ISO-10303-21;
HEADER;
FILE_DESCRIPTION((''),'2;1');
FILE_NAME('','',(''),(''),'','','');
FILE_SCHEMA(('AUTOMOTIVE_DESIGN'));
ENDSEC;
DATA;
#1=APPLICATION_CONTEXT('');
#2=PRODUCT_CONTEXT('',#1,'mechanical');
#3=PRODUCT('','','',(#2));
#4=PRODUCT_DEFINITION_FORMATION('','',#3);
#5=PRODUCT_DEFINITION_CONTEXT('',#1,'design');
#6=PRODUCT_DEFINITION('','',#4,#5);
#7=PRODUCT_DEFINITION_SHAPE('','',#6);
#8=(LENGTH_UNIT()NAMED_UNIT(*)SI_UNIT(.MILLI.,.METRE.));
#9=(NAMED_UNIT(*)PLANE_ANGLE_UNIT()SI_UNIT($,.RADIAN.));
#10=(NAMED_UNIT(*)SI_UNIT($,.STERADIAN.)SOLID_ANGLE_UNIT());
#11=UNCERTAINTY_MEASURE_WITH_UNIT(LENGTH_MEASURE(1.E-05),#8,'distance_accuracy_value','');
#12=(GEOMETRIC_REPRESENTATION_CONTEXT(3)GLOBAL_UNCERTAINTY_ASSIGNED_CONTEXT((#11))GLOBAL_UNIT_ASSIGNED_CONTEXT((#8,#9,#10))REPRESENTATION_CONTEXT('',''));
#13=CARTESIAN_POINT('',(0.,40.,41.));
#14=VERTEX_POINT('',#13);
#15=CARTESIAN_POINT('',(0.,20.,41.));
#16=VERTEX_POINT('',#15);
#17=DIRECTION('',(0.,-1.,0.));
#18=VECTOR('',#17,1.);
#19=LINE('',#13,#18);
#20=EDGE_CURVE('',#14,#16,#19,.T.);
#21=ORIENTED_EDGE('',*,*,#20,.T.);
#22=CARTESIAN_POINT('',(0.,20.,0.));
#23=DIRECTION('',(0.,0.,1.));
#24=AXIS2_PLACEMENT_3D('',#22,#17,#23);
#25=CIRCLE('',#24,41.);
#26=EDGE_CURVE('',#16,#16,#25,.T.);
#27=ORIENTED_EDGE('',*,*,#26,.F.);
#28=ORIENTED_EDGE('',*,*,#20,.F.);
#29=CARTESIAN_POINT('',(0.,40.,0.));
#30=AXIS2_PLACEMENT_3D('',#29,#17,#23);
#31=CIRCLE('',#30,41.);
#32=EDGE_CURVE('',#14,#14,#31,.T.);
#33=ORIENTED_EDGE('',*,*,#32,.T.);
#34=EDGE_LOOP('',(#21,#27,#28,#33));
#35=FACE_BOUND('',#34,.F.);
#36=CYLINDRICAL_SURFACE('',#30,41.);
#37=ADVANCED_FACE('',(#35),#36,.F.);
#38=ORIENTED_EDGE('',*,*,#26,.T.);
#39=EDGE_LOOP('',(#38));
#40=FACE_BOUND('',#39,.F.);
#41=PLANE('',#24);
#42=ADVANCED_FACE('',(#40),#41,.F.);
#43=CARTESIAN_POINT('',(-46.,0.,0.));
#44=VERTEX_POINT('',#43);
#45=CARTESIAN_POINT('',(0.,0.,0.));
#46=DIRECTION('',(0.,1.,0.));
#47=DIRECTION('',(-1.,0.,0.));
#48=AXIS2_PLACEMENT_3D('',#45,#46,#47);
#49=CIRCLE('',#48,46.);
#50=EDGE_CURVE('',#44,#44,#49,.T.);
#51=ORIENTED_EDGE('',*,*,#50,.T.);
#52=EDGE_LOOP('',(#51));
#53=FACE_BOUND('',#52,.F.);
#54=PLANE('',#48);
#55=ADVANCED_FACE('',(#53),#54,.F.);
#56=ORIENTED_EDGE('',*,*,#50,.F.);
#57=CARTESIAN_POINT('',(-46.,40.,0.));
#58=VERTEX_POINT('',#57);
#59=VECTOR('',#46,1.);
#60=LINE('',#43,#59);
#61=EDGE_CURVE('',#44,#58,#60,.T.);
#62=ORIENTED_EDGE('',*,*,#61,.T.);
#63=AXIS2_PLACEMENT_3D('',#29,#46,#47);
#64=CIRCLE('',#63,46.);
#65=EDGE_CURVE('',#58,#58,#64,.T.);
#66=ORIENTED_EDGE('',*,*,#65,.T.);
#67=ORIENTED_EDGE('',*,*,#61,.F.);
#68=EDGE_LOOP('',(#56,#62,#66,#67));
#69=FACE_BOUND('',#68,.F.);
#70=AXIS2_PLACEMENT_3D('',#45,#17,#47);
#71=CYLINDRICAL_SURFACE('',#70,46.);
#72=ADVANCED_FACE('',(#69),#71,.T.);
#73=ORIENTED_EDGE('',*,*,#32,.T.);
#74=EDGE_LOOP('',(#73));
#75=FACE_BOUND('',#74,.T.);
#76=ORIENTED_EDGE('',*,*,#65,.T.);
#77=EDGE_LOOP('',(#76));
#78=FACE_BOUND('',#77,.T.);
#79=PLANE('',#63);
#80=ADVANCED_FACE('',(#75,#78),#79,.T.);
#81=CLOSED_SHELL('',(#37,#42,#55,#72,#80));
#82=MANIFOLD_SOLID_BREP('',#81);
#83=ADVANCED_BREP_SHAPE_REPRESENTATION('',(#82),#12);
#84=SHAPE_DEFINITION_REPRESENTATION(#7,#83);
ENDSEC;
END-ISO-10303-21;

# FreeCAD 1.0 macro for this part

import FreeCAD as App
import Part
import Sketcher

V = App.Vector

doc = App.newDocument("Part")
params = doc.addObject("Spreadsheet::Sheet", "Params")
for row, (alias, value) in enumerate([
    ("sketch1_diameter", "92 mm"),
    ("pad1_length", "40 mm"),
    ("sketch2_diameter", "82 mm"),
    ("hole_diameter", "82 mm"),
    ("hole_depth", "20 mm"),
], start=1):
    params.set(f"A{row}", alias)
    params.set(f"B{row}", "=" + value)
    params.setAlias(f"B{row}", alias)

body = doc.addObject("PartDesign::Body", "Body")

# Sketch on XZ plane
sketch1 = doc.addObject("Sketcher::SketchObject", "Sketch")
body.addObject(sketch1)
sketch1.AttachmentSupport = (doc.XZ_Plane, [""])
sketch1.MapMode = "FlatFace"
sketch1.addGeometry(Part.Circle(V(0, 0, 0), V(0, 0, 1), 46), False)
sketch1.addConstraint([
    Sketcher.Constraint("Coincident", 0, 3, -1, 1),
    Sketcher.Constraint("Diameter", 0, 92.0),
])
sketch1.setExpression("Constraints[1]", "Params.sketch1_diameter")
pad1 = doc.addObject("PartDesign::Pad", "Pad")
body.addObject(pad1)
pad1.Profile = sketch1
pad1.setExpression("Length", "Params.pad1_length")
pad1.Reversed = True

# Sketch on XZ plane
sketch2 = doc.addObject("Sketcher::SketchObject", "Sketch001")
body.addObject(sketch2)
sketch2.AttachmentSupport = (doc.XZ_Plane, [""])
sketch2.MapMode = "FlatFace"
sketch2.AttachmentOffset = App.Placement(V(0, 0, -40), App.Rotation())
sketch2.addGeometry(Part.Circle(V(0, 0, 0), V(0, 0, 1), 41), False)
sketch2.addConstraint([
    Sketcher.Constraint("Coincident", 0, 3, -1, 1),
    Sketcher.Constraint("Diameter", 0, 82.0),
])
sketch2.setExpression("Constraints[1]", "Params.sketch2_diameter")
doc.recompute()
hole = doc.addObject("PartDesign::Hole", "Hole")
body.addObject(hole)
hole.Profile = sketch2
hole.ThreadType = "None"
hole.setExpression("Diameter", "Params.hole_diameter")
hole.DepthType = "Dimension"
hole.setExpression("Depth", "Params.hole_depth")
hole.DrillPoint = "Flat"
hole.Reversed = True

doc.recompute()
